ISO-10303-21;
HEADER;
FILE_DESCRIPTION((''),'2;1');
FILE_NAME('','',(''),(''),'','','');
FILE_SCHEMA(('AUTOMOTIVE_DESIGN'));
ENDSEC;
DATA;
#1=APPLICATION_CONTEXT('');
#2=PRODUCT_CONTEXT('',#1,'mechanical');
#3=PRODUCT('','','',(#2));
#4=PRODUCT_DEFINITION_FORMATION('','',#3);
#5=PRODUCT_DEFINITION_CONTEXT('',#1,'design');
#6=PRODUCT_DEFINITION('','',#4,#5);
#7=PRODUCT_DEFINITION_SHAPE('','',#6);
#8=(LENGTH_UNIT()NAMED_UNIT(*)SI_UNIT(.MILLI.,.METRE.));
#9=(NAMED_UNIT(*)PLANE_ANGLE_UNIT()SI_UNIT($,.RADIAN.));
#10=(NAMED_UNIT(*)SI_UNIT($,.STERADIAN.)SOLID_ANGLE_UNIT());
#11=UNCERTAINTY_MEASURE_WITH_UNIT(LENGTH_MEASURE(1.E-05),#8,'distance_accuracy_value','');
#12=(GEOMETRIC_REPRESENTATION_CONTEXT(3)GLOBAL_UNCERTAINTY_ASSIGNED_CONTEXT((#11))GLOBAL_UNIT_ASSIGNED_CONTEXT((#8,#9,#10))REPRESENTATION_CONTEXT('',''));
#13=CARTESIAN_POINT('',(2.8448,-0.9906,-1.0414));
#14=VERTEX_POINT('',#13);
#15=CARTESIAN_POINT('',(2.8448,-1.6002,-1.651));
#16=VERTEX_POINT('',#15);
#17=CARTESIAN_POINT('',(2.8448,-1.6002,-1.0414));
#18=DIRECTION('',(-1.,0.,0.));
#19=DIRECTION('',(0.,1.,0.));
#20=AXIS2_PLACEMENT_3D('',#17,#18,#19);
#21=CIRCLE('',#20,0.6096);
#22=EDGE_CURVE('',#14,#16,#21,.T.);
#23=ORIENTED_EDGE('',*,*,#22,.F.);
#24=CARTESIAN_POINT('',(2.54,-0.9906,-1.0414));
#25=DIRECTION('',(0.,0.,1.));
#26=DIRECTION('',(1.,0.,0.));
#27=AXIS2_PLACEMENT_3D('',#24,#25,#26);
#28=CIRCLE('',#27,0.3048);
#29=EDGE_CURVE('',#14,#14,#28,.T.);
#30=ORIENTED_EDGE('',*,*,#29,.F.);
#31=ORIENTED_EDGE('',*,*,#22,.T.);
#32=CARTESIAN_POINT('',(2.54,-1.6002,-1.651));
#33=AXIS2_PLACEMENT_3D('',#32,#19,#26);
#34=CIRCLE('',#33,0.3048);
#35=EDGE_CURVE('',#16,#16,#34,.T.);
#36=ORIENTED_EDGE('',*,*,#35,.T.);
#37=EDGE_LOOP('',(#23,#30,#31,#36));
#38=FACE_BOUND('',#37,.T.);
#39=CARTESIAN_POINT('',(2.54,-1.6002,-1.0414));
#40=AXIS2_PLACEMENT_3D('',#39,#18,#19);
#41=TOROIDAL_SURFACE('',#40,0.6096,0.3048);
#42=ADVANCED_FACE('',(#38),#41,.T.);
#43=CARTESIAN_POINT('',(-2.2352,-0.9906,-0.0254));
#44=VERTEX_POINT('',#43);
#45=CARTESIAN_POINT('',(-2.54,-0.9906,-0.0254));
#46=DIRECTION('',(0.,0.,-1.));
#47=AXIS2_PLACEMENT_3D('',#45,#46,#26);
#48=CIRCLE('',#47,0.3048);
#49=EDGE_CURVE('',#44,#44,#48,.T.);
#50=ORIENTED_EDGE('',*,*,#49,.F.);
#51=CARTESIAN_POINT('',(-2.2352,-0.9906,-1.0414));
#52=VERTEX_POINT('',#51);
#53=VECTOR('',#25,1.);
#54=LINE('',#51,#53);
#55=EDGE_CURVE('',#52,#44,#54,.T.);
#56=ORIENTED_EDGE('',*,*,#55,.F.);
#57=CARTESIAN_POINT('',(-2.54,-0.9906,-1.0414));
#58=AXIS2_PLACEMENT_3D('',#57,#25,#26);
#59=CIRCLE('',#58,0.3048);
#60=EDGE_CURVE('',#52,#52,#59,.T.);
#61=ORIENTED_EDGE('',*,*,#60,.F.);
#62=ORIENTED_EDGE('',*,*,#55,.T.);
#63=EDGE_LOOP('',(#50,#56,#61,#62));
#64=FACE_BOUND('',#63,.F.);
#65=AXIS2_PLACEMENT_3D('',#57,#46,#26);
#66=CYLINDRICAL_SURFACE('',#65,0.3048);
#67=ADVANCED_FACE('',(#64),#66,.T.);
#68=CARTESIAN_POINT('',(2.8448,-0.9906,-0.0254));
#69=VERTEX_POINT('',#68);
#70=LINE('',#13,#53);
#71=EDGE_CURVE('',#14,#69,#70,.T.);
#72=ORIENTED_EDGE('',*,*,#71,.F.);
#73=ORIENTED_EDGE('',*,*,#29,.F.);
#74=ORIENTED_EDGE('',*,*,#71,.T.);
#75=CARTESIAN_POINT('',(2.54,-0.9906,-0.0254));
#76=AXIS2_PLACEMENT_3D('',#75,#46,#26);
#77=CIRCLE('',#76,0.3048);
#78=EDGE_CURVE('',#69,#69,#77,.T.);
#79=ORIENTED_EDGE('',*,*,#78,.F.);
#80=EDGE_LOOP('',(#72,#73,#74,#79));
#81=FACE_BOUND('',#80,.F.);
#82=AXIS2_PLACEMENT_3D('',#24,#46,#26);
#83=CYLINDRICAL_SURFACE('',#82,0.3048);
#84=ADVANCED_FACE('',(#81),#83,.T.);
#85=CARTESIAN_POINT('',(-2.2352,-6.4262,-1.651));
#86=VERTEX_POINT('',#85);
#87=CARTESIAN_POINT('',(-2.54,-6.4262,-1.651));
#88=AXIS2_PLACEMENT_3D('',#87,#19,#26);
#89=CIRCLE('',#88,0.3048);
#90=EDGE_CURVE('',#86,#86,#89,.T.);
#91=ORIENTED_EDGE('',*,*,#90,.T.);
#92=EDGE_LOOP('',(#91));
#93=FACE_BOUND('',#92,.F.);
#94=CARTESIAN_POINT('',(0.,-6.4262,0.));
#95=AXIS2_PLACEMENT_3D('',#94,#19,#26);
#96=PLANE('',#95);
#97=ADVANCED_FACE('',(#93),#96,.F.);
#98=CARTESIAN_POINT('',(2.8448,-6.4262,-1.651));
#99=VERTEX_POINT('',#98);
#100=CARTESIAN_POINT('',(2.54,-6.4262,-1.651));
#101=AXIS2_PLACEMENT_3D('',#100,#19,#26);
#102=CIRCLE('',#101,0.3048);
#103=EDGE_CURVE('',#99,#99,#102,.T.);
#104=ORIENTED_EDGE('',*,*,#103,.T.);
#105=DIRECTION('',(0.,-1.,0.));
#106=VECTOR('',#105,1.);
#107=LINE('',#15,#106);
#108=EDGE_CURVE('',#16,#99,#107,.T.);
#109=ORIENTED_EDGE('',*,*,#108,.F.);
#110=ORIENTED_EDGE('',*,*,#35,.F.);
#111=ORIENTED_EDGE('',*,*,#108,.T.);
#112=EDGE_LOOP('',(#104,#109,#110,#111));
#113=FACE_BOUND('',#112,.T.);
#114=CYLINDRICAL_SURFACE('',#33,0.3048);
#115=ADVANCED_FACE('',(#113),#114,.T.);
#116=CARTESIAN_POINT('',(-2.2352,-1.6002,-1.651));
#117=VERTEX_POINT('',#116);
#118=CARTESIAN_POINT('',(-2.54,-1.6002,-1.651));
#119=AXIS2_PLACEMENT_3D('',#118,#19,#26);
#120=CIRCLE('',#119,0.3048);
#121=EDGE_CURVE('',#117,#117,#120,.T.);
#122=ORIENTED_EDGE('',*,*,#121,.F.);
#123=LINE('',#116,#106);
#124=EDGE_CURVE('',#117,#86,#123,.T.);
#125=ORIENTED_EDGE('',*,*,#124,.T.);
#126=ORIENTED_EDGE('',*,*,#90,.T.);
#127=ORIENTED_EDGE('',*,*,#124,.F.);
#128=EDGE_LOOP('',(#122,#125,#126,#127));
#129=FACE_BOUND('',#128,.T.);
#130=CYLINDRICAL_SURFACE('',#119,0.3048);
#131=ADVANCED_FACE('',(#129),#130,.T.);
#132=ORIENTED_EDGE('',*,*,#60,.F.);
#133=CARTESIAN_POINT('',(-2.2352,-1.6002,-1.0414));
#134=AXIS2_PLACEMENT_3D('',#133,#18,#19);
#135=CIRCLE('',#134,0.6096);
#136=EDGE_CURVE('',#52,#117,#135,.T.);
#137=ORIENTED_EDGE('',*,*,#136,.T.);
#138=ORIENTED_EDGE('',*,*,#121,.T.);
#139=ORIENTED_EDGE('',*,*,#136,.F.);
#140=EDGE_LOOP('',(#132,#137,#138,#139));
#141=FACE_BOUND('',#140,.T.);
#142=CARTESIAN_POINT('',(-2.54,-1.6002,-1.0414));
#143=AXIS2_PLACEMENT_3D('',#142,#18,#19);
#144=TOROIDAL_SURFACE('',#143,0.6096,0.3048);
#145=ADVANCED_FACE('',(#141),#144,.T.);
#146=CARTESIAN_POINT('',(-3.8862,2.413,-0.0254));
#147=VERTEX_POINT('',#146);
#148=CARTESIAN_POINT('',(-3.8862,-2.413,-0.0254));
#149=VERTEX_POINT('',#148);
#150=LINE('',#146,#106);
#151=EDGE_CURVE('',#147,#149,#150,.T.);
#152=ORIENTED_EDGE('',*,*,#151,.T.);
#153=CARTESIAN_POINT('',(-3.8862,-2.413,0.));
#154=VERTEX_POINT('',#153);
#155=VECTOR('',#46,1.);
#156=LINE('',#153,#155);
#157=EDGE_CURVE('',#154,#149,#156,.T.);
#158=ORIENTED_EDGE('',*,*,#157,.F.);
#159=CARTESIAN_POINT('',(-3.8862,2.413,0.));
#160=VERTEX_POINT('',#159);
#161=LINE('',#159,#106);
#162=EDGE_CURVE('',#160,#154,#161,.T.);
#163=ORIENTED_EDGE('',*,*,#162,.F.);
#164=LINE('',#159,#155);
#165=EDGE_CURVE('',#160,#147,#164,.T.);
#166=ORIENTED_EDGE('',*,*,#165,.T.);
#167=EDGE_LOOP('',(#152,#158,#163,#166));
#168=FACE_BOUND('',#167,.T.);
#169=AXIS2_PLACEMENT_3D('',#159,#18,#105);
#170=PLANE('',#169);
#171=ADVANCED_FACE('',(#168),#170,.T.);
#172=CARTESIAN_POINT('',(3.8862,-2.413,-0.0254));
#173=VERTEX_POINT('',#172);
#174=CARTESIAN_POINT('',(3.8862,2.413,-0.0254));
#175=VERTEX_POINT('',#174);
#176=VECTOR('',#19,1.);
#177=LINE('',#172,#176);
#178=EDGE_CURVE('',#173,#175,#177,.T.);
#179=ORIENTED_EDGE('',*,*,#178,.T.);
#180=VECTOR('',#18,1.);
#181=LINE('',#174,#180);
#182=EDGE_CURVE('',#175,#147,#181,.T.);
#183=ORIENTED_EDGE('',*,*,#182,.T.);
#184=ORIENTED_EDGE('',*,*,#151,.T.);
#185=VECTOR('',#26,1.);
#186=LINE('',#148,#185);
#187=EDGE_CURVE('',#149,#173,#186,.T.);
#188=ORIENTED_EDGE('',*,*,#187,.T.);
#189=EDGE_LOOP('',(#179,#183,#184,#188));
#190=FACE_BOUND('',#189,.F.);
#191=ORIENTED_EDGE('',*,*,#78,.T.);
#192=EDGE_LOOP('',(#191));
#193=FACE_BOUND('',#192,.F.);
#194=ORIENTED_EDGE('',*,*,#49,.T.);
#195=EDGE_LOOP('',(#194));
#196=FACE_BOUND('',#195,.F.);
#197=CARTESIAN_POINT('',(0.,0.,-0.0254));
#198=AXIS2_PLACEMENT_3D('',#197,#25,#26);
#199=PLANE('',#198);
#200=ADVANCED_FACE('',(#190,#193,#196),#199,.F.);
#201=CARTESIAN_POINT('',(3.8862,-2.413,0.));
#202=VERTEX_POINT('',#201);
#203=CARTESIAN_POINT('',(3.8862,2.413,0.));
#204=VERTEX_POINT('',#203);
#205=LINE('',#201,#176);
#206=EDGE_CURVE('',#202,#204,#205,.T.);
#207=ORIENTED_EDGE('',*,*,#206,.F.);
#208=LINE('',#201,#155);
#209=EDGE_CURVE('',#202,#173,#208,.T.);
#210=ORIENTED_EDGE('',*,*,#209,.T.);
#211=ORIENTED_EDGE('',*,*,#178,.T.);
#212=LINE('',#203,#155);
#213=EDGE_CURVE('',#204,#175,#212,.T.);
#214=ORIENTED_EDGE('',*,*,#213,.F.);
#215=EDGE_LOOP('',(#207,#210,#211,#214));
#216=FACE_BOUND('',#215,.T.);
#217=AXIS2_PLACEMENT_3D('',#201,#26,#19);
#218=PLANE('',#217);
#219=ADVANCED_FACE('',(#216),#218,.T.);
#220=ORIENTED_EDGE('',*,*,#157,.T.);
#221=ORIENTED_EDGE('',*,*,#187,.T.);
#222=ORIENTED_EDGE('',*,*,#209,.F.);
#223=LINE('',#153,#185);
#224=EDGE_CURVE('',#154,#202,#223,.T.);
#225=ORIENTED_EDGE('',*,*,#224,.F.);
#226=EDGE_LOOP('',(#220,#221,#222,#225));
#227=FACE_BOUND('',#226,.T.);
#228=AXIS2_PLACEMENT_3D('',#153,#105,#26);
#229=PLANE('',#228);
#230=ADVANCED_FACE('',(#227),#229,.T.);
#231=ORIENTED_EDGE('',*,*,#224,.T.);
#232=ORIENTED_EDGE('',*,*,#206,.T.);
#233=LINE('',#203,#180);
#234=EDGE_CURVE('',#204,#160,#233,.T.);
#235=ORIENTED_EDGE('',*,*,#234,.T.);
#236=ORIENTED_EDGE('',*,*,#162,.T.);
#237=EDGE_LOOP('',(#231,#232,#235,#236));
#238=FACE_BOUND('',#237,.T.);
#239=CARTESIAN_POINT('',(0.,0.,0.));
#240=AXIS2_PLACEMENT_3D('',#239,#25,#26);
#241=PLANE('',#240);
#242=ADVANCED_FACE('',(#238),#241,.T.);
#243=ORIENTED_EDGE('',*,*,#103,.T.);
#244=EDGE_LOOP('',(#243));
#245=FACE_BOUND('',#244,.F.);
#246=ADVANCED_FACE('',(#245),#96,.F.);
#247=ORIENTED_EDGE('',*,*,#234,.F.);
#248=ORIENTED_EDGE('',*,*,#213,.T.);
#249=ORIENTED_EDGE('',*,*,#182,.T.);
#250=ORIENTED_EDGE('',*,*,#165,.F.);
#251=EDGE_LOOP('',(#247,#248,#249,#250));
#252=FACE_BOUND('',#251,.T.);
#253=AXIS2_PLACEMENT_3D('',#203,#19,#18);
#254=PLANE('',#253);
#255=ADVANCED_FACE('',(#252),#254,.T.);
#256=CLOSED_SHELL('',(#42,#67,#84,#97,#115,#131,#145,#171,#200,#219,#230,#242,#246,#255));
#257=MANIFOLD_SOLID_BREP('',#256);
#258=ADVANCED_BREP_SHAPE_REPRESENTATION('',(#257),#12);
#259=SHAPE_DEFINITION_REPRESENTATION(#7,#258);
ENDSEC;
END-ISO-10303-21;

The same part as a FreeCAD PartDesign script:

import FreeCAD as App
import Part
import Sketcher
Q = App.Units.Quantity


def add_polygon(sketch, points):
    """Adds a closed chain of lines whose ends are joined by coincident constraints."""
    first, n = sketch.GeometryCount, len(points)
    for a, b in zip(points, points[1:] + points[:1]):
        sketch.addGeometry(Part.LineSegment(App.Vector(*a, 0), App.Vector(*b, 0)), False)
    for i in range(n):
        sketch.addConstraint(Sketcher.Constraint("Coincident", first + i, 2, first + (i + 1) % n, 1))

doc = App.newDocument("Part")
body = doc.addObject("PartDesign::Body", "Body")

sketch1 = doc.addObject("Sketcher::SketchObject", "Sketch")
body.addObject(sketch1)
sketch1.AttachmentSupport = (doc.XY_Plane, [""])
sketch1.MapMode = "FlatFace"
add_polygon(sketch1, [(3.9, 2.4), (-3.9, 2.4), (-3.9, -2.4), (3.9, -2.4)])
sketch1.addConstraint(Sketcher.Constraint("Horizontal", 0))
sketch1.addConstraint(Sketcher.Constraint("Vertical", 1))
sketch1.addConstraint(Sketcher.Constraint("Horizontal", 2))
sketch1.addConstraint(Sketcher.Constraint("Vertical", 3))
sketch1.addConstraint(Sketcher.Constraint("Symmetric", 0, 2, 2, 2, -1, 1))
sketch1.addConstraint(Sketcher.Constraint("DistanceY", 1, 2, 1, 1, Q("0.19 in")))
sketch1.addConstraint(Sketcher.Constraint("DistanceX", 0, 2, 0, 1, Q("0.306 in")))
pad1 = doc.addObject("PartDesign::Pad", "Pad")
body.addObject(pad1)
pad1.Profile = sketch1
pad1.Length = Q("0.001 in")
pad1.Reversed = True

sketch2 = doc.addObject("Sketcher::SketchObject", "Sketch001")
body.addObject(sketch2)
sketch2.AttachmentSupport = (doc.XY_Plane, [""])
sketch2.MapMode = "FlatFace"
sketch2.AttachmentOffset = App.Placement(App.Vector(0, 0, -0.041 * 25.4), App.Rotation())
sketch2.addGeometry(Part.Circle(App.Vector(-2.54, -0.99, 0), App.Vector(0, 0, 1), 0.3), False)
sketch2.addConstraint(Sketcher.Constraint("Diameter", 0, Q("0.024 in")))
sketch2.addConstraint(Sketcher.Constraint("DistanceX", 0, 3, -1, 1, Q("0.1 in")))
sketch2.addConstraint(Sketcher.Constraint("DistanceY", 0, 3, -1, 1, Q("0.039 in")))
pad2 = doc.addObject("PartDesign::Pad", "Pad001")
body.addObject(pad2)
pad2.Profile = sketch2
pad2.Length = Q("0.041 in")

sketch3 = doc.addObject("Sketcher::SketchObject", "Sketch002")
body.addObject(sketch3)
sketch3.AttachmentSupport = (doc.XY_Plane, [""])
sketch3.MapMode = "FlatFace"
sketch3.AttachmentOffset = App.Placement(App.Vector(0, 0, -0.041 * 25.4), App.Rotation())
sketch3.addGeometry(Part.Circle(App.Vector(2.54, -0.99, 0), App.Vector(0, 0, 1), 0.3), False)
sketch3.addConstraint(Sketcher.Constraint("Diameter", 0, Q("0.024 in")))
sketch3.addConstraint(Sketcher.Constraint("DistanceX", -1, 1, 0, 3, Q("0.1 in")))
sketch3.addConstraint(Sketcher.Constraint("DistanceY", 0, 3, -1, 1, Q("0.039 in")))
pad3 = doc.addObject("PartDesign::Pad", "Pad002")
body.addObject(pad3)
pad3.Profile = sketch3
pad3.Length = Q("0.041 in")

sketch4 = doc.addObject("Sketcher::SketchObject", "Sketch003")
body.addObject(sketch4)
sketch4.AttachmentSupport = (doc.XY_Plane, [""])
sketch4.MapMode = "FlatFace"
sketch4.AttachmentOffset = App.Placement(App.Vector(0, 0, -0.041 * 25.4), App.Rotation())
sketch4.addGeometry(Part.Circle(App.Vector(-2.54, -0.99, 0), App.Vector(0, 0, 1), 0.3), False)
sketch4.addGeometry(Part.LineSegment(App.Vector(-2.54, -1.6, 0), App.Vector(-12.54, -1.6, 0)), True)
sketch4.addConstraint(Sketcher.Constraint("Horizontal", 1))
sketch4.addConstraint(Sketcher.Constraint("Vertical", 0, 3, 1, 1))
sketch4.addConstraint(Sketcher.Constraint("Diameter", 0, Q("0.024 in")))
sketch4.addConstraint(Sketcher.Constraint("DistanceX", 0, 3, -1, 1, Q("0.1 in")))
sketch4.addConstraint(Sketcher.Constraint("DistanceX", 1, 2, 1, 1, Q("0.3937 in")))
sketch4.addConstraint(Sketcher.Constraint("DistanceY", 0, 3, -1, 1, Q("0.039 in")))
sketch4.addConstraint(Sketcher.Constraint("DistanceY", 1, 1, -1, 1, Q("0.063 in")))
revolution = doc.addObject("PartDesign::Revolution", "Revolution")
body.addObject(revolution)
revolution.Profile = sketch4
revolution.ReferenceAxis = (sketch4, ["Axis0"])
revolution.Angle = 90

sketch5 = doc.addObject("Sketcher::SketchObject", "Sketch004")
body.addObject(sketch5)
sketch5.AttachmentSupport = (doc.XY_Plane, [""])
sketch5.MapMode = "FlatFace"
sketch5.AttachmentOffset = App.Placement(App.Vector(0, 0, -0.041 * 25.4), App.Rotation())
sketch5.addGeometry(Part.Circle(App.Vector(2.54, -0.99, 0), App.Vector(0, 0, 1), 0.3), False)
sketch5.addGeometry(Part.LineSegment(App.Vector(2.54, -1.6, 0), App.Vector(-7.46, -1.6, 0)), True)
sketch5.addConstraint(Sketcher.Constraint("Horizontal", 1))
sketch5.addConstraint(Sketcher.Constraint("Vertical", 0, 3, 1, 1))
sketch5.addConstraint(Sketcher.Constraint("Diameter", 0, Q("0.024 in")))
sketch5.addConstraint(Sketcher.Constraint("DistanceX", -1, 1, 0, 3, Q("0.1 in")))
sketch5.addConstraint(Sketcher.Constraint("DistanceX", 1, 2, 1, 1, Q("0.3937 in")))
sketch5.addConstraint(Sketcher.Constraint("DistanceY", 0, 3, -1, 1, Q("0.039 in")))
sketch5.addConstraint(Sketcher.Constraint("DistanceY", 1, 1, -1, 1, Q("0.063 in")))
revolution2 = doc.addObject("PartDesign::Revolution", "Revolution001")
body.addObject(revolution2)
revolution2.Profile = sketch5
revolution2.ReferenceAxis = (sketch5, ["Axis0"])
revolution2.Angle = 90

sketch6 = doc.addObject("Sketcher::SketchObject", "Sketch005")
body.addObject(sketch6)
sketch6.AttachmentSupport = (doc.XZ_Plane, [""])
sketch6.MapMode = "FlatFace"
sketch6.AttachmentOffset = App.Placement(App.Vector(0, 0, 0.063 * 25.4), App.Rotation())
sketch6.addGeometry(Part.Circle(App.Vector(-2.54, -1.65, 0), App.Vector(0, 0, 1), 0.3), False)
sketch6.addConstraint(Sketcher.Constraint("Diameter", 0, Q("0.024 in")))
sketch6.addConstraint(Sketcher.Constraint("DistanceX", 0, 3, -1, 1, Q("0.1 in")))
sketch6.addConstraint(Sketcher.Constraint("DistanceY", 0, 3, -1, 1, Q("0.065 in")))
pad4 = doc.addObject("PartDesign::Pad", "Pad003")
body.addObject(pad4)
pad4.Profile = sketch6
pad4.Length = Q("0.19 in")

sketch7 = doc.addObject("Sketcher::SketchObject", "Sketch006")
body.addObject(sketch7)
sketch7.AttachmentSupport = (doc.XZ_Plane, [""])
sketch7.MapMode = "FlatFace"
sketch7.AttachmentOffset = App.Placement(App.Vector(0, 0, 0.063 * 25.4), App.Rotation())
sketch7.addGeometry(Part.Circle(App.Vector(2.54, -1.65, 0), App.Vector(0, 0, 1), 0.3), False)
sketch7.addConstraint(Sketcher.Constraint("Diameter", 0, Q("0.024 in")))
sketch7.addConstraint(Sketcher.Constraint("DistanceX", -1, 1, 0, 3, Q("0.1 in")))
sketch7.addConstraint(Sketcher.Constraint("DistanceY", 0, 3, -1, 1, Q("0.065 in")))
pad5 = doc.addObject("PartDesign::Pad", "Pad004")
body.addObject(pad5)
pad5.Profile = sketch7
pad5.Length = Q("0.19 in")

doc.recompute()
